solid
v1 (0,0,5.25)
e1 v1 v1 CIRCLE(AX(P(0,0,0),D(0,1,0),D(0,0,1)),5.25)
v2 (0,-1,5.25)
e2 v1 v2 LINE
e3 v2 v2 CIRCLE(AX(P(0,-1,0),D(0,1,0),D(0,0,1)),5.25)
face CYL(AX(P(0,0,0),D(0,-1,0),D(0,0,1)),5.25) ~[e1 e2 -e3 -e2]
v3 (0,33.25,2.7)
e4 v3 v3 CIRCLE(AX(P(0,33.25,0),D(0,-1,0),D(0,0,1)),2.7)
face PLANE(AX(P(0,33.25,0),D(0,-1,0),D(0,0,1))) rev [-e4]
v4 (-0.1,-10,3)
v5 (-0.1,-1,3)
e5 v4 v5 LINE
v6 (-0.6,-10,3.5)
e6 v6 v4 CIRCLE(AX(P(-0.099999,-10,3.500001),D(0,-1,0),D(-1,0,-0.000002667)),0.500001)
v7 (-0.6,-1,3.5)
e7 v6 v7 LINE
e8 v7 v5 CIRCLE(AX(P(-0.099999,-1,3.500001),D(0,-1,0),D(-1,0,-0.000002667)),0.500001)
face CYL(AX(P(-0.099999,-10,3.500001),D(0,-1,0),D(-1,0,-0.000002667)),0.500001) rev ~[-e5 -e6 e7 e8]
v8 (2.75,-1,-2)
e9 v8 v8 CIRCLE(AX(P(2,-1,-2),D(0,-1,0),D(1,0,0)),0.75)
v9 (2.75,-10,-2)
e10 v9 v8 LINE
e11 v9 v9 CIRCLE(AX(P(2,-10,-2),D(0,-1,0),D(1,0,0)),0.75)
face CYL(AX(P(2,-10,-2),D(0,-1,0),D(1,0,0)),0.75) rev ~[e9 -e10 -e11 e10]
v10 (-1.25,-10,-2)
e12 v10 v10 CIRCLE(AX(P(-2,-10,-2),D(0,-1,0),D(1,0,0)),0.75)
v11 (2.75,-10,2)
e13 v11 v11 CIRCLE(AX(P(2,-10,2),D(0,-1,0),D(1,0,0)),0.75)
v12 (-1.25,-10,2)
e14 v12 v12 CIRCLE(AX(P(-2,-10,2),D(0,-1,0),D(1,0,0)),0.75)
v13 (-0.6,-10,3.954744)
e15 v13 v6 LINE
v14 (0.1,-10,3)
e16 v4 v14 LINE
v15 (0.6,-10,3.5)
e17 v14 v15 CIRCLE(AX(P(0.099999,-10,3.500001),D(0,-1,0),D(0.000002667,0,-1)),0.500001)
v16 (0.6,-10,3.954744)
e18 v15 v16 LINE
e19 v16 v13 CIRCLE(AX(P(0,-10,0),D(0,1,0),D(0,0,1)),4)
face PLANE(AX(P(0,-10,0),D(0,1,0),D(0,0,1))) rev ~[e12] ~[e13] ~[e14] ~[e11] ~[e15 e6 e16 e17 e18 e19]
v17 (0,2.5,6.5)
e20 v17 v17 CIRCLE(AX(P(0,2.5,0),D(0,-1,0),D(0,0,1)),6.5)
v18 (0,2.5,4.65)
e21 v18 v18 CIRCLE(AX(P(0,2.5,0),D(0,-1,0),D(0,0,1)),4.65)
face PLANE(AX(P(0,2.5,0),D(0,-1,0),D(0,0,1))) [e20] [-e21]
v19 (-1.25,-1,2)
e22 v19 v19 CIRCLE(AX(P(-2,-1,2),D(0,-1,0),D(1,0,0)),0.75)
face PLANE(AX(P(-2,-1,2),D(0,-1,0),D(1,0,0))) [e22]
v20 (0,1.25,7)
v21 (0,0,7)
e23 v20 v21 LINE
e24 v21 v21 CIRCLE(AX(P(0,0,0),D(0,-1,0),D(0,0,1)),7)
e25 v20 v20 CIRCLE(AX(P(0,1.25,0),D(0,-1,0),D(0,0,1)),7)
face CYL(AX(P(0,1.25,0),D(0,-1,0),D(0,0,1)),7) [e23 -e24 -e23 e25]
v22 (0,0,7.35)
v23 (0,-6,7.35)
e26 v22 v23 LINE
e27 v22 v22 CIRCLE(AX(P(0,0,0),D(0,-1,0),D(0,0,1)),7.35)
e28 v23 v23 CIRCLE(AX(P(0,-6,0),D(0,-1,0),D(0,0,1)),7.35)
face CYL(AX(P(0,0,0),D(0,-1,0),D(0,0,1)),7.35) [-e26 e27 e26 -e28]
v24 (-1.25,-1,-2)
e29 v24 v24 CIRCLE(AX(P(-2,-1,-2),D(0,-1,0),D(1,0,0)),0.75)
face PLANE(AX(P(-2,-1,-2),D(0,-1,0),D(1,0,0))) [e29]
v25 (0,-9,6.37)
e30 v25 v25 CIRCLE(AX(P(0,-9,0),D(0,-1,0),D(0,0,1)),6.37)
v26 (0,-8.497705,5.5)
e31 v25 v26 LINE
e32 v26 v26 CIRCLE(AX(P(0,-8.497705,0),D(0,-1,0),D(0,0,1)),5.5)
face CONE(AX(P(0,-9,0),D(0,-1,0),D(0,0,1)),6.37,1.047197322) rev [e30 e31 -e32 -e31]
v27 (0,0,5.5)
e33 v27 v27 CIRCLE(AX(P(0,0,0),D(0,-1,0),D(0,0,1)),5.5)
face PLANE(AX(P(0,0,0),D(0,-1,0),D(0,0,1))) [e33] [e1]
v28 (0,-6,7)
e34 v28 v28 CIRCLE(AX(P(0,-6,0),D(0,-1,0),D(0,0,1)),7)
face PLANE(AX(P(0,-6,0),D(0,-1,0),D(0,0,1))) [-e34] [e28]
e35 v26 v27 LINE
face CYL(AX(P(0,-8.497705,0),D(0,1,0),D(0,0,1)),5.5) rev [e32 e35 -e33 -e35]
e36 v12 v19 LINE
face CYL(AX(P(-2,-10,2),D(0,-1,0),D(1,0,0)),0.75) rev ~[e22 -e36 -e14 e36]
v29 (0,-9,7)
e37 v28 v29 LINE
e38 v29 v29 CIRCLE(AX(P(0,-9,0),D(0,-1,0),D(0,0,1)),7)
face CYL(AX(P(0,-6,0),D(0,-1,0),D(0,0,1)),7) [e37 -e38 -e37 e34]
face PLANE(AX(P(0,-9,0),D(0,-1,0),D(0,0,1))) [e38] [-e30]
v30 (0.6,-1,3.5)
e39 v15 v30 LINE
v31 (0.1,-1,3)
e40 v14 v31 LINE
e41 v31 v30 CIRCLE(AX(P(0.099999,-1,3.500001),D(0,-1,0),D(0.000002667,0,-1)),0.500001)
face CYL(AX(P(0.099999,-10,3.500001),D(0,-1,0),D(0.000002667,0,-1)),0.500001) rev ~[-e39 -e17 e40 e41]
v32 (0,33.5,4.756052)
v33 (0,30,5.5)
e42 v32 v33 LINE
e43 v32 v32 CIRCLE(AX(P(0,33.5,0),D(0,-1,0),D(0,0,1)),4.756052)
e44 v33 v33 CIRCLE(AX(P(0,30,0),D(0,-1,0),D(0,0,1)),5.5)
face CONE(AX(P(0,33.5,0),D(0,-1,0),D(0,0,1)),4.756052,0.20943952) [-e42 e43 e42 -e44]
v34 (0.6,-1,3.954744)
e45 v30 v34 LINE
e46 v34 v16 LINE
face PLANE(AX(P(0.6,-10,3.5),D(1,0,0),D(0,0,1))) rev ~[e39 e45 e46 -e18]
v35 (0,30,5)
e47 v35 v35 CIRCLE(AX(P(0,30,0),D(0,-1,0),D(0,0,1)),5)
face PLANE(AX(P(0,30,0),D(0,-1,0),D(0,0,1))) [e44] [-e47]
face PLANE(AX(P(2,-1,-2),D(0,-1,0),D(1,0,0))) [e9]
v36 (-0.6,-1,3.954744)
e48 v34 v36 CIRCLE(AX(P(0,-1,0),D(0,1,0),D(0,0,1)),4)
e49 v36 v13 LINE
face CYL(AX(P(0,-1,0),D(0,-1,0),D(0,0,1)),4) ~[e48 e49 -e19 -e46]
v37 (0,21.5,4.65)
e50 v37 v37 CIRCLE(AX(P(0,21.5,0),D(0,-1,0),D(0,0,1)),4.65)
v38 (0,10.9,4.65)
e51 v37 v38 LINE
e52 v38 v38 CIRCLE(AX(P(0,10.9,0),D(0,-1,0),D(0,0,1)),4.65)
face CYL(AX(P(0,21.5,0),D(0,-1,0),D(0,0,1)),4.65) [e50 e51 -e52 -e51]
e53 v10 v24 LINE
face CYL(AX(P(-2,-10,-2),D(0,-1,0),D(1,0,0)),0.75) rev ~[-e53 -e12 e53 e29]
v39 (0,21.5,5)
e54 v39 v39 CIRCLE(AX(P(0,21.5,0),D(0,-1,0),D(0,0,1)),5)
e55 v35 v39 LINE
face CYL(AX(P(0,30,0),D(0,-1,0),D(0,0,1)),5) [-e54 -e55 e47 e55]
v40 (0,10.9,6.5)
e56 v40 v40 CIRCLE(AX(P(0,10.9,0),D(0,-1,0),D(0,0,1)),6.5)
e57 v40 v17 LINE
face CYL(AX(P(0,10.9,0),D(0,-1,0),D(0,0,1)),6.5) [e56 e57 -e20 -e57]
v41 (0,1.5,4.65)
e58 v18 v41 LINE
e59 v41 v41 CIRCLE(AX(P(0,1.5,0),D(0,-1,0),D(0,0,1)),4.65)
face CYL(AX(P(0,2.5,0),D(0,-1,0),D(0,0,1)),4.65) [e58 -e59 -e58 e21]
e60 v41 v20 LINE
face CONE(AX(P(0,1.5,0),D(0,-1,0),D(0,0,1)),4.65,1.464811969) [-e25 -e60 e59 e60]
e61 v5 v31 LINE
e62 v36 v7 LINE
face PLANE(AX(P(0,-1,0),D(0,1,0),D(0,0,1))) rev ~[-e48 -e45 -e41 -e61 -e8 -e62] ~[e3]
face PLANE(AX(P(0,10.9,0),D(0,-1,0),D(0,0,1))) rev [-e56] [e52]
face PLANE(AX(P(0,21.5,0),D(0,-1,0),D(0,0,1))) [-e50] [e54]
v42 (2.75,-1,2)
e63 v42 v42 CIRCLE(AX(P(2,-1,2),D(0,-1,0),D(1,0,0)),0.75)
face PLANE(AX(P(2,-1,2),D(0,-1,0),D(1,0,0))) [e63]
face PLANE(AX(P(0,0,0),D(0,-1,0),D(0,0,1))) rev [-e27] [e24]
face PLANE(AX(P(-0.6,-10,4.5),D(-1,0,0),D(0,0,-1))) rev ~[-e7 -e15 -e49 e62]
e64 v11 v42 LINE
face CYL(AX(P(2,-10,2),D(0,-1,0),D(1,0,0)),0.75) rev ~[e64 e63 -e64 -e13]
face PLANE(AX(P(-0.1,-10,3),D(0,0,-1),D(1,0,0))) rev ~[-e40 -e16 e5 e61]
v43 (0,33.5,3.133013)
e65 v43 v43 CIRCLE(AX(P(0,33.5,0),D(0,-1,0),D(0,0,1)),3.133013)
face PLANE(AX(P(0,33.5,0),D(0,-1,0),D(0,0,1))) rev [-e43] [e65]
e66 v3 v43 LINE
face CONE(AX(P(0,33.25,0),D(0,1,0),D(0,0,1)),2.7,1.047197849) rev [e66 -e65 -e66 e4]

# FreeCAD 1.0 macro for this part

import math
import FreeCAD as App
import Part
import Sketcher
from FreeCAD import Vector
Q = App.Units.Quantity


def add_polygon(sketch, points):
    """Adds a closed chain of lines whose ends are joined by coincident constraints."""
    first, n = sketch.GeometryCount, len(points)
    for a, b in zip(points, points[1:] + points[:1]):
        sketch.addGeometry(Part.LineSegment(App.Vector(*a, 0), App.Vector(*b, 0)), False)
    for i in range(n):
        sketch.addConstraint(Sketcher.Constraint("Coincident", first + i, 2, first + (i + 1) % n, 1))

doc = App.newDocument("Part")
body = doc.addObject("PartDesign::Body", "Body")

# Sketch on YZ plane
sketch1 = body.newObject("Sketcher::SketchObject", "Sketch")
sketch1.AttachmentSupport = (doc.getObject("YZ_Plane"), [""])
sketch1.MapMode = "FlatFace"
add_polygon(sketch1, [(1.25, 7), (0, 7), (0, 0), (33.25, 0), (33.25, 2.7), (33.5, 3.13), (33.5, 4.76), (30, 5.5), (30, 5), (21.5, 5), (21.5, 4.65), (10.9, 4.65), (10.9, 6.5), (2.5, 6.5), (2.5, 4.65), (1.5, 4.65)])  # lines 0-15
sketch1.addConstraint(Sketcher.Constraint("Horizontal", 0))
sketch1.addConstraint(Sketcher.Constraint("Vertical", 1))
sketch1.addConstraint(Sketcher.Constraint("Horizontal", 2))
sketch1.addConstraint(Sketcher.Constraint("Vertical", 3))
sketch1.addConstraint(Sketcher.Constraint("Vertical", 5))
sketch1.addConstraint(Sketcher.Constraint("Vertical", 7))
sketch1.addConstraint(Sketcher.Constraint("Horizontal", 8))
sketch1.addConstraint(Sketcher.Constraint("Vertical", 9))
sketch1.addConstraint(Sketcher.Constraint("Horizontal", 10))
sketch1.addConstraint(Sketcher.Constraint("Vertical", 11))
sketch1.addConstraint(Sketcher.Constraint("Horizontal", 12))
sketch1.addConstraint(Sketcher.Constraint("Vertical", 13))
sketch1.addConstraint(Sketcher.Constraint("Horizontal", 14))
sketch1.addConstraint(Sketcher.Constraint("Coincident", 1, 2, -1, 1))
sketch1.addConstraint(Sketcher.Constraint("Horizontal", 10, 2, 13, 2))
sketch1.addConstraint(Sketcher.Constraint("DistanceX", 14, 2, 14, 1, 1.0))
sketch1.addConstraint(Sketcher.Constraint("DistanceY", 1, 2, 1, 1, 7.0))
sketch1.addConstraint(Sketcher.Constraint("Angle", 4, Q("60.000017 deg")))
sketch1.addConstraint(Sketcher.Constraint("Angle", 6, Q("167.999999 deg")))
sketch1.addConstraint(Sketcher.Constraint("DistanceX", 8, 2, 8, 1, 8.5))
sketch1.addConstraint(Sketcher.Constraint("DistanceX", 10, 2, 10, 1, 10.6))
sketch1.addConstraint(Sketcher.Constraint("DistanceX", 12, 2, 12, 1, 8.4))
sketch1.addConstraint(Sketcher.Constraint("DistanceY", 3, 1, 3, 2, 2.7))
sketch1.addConstraint(Sketcher.Constraint("DistanceY", 7, 2, 7, 1, 0.5))
sketch1.addConstraint(Sketcher.Constraint("DistanceX", -1, 1, 6, 2, 30.0))
sketch1.addConstraint(Sketcher.Constraint("DistanceY", -1, 1, 7, 2, 5.0))
sketch1.addConstraint(Sketcher.Constraint("DistanceX", 8, 2, 5, 2, 12.0))
sketch1.addConstraint(Sketcher.Constraint("Distance", 4, 0.5))
sketch1.addConstraint(Sketcher.Constraint("DistanceX", 0, 2, 0, 1, 1.25))
sketch1.addConstraint(Sketcher.Constraint("DistanceY", 9, 2, 9, 1, 0.35))
sketch1.addConstraint(Sketcher.Constraint("DistanceY", 11, 1, 11, 2, 1.85))
revolution = body.newObject("PartDesign::Revolution", "Revolution")
revolution.Profile = sketch1
revolution.ReferenceAxis = (sketch1, ["H_Axis"])
revolution.Angle = 360

# Sketch on YZ plane
sketch2 = body.newObject("Sketcher::SketchObject", "Sketch001")
sketch2.AttachmentSupport = (doc.getObject("YZ_Plane"), [""])
sketch2.MapMode = "FlatFace"
add_polygon(sketch2, [(-8.5, 5.5), (0, 5.5), (0, 7.35), (-6, 7.35), (-6, 7), (-9, 7), (-9, 6.37)])  # lines 0-6
sketch2.addConstraint(Sketcher.Constraint("Horizontal", 0))
sketch2.addConstraint(Sketcher.Constraint("Vertical", 1))
sketch2.addConstraint(Sketcher.Constraint("Horizontal", 2))
sketch2.addConstraint(Sketcher.Constraint("Vertical", 3))
sketch2.addConstraint(Sketcher.Constraint("Horizontal", 4))
sketch2.addConstraint(Sketcher.Constraint("Vertical", 5))
sketch2.addConstraint(Sketcher.Constraint("PointOnObject", 0, 2, -2))
sketch2.addConstraint(Sketcher.Constraint("DistanceX", 2, 2, 2, 1, 6.0))
sketch2.addConstraint(Sketcher.Constraint("DistanceX", 4, 2, 4, 1, 3.0))
sketch2.addConstraint(Sketcher.Constraint("Angle", 6, Q("-59.999987 deg")))
sketch2.addConstraint(Sketcher.Constraint("DistanceY", -1, 1, 3, 2, 7.0))
sketch2.addConstraint(Sketcher.Constraint("DistanceY", 1, 1, 1, 2, 1.85))
sketch2.addConstraint(Sketcher.Constraint("DistanceY", 3, 2, 3, 1, 0.35))
sketch2.addConstraint(Sketcher.Constraint("DistanceY", 5, 2, 5, 1, 0.63))
revolution2 = body.newObject("PartDesign::Revolution", "Revolution001")
revolution2.Profile = sketch2
revolution2.ReferenceAxis = (sketch2, ["H_Axis"])
revolution2.Angle = 360

# Sketch on YZ plane
sketch3 = body.newObject("Sketcher::SketchObject", "Sketch002")
sketch3.AttachmentSupport = (doc.getObject("YZ_Plane"), [""])
sketch3.MapMode = "FlatFace"
add_polygon(sketch3, [(-10, 0), (0, 0), (0, 5.2), (-1, 5.2), (-1, 4), (-10, 4)])  # lines 0-5
sketch3.addConstraint(Sketcher.Constraint("Horizontal", 0))
sketch3.addConstraint(Sketcher.Constraint("Vertical", 1))
sketch3.addConstraint(Sketcher.Constraint("Horizontal", 2))
sketch3.addConstraint(Sketcher.Constraint("Vertical", 3))
sketch3.addConstraint(Sketcher.Constraint("Horizontal", 4))
sketch3.addConstraint(Sketcher.Constraint("Vertical", 5))
sketch3.addConstraint(Sketcher.Constraint("Coincident", 0, 2, -1, 1))
sketch3.addConstraint(Sketcher.Constraint("DistanceX", 0, 1, 0, 2, 10.0))
sketch3.addConstraint(Sketcher.Constraint("DistanceX", 2, 2, 2, 1, 1.0))
sketch3.addConstraint(Sketcher.Constraint("DistanceY", 5, 2, 5, 1, 4.0))
sketch3.addConstraint(Sketcher.Constraint("DistanceY", 1, 1, 1, 2, 5.25))
revolution3 = body.newObject("PartDesign::Revolution", "Revolution002")
revolution3.Profile = sketch3
revolution3.ReferenceAxis = (sketch3, ["H_Axis"])
revolution3.Angle = 360

# Sketch on XZ plane
sketch4 = body.newObject("Sketcher::SketchObject", "Sketch003")
sketch4.AttachmentSupport = (doc.getObject("XZ_Plane"), [""])
sketch4.MapMode = "FlatFace"
sketch4.AttachmentOffset = App.Placement(Vector(0, 0, 10), App.Rotation())
sketch4.addGeometry(Part.Circle(Vector(-2, 2, 0), Vector(0, 0, 1), 0.75), False)
sketch4.addGeometry(Part.Circle(Vector(2, 2, 0), Vector(0, 0, 1), 0.75), False)
sketch4.addGeometry(Part.Circle(Vector(2, -2, 0), Vector(0, 0, 1), 0.75), False)
sketch4.addGeometry(Part.Circle(Vector(-2, -2, 0), Vector(0, 0, 1), 0.75), False)
sketch4.addGeometry(Part.ArcOfCircle(Part.Circle(Vector(-0.1, 3.5, 0), Vector(0, 0, 1), 0.5), math.radians(-180), math.radians(-90)), False)
sketch4.addGeometry(Part.LineSegment(Vector(-0.1, 3, 0), Vector(0.1, 3, 0)), False)
sketch4.addGeometry(Part.ArcOfCircle(Part.Circle(Vector(0.1, 3.5, 0), Vector(0, 0, 1), 0.5), math.radians(-90), math.radians(0)), False)
sketch4.addGeometry(Part.LineSegment(Vector(0.6, 3.5, 0), Vector(0.6, 4.5, 0)), False)
sketch4.addGeometry(Part.LineSegment(Vector(0.6, 4.5, 0), Vector(-0.6, 4.5, 0)), False)
sketch4.addGeometry(Part.LineSegment(Vector(-0.6, 4.5, 0), Vector(-0.6, 3.5, 0)), False)
sketch4.addConstraint(Sketcher.Constraint("Coincident", 4, 2, 5, 1))
sketch4.addConstraint(Sketcher.Constraint("Coincident", 5, 2, 6, 1))
sketch4.addConstraint(Sketcher.Constraint("Coincident", 6, 2, 7, 1))
sketch4.addConstraint(Sketcher.Constraint("Coincident", 7, 2, 8, 1))
sketch4.addConstraint(Sketcher.Constraint("Coincident", 8, 2, 9, 1))
sketch4.addConstraint(Sketcher.Constraint("Coincident", 9, 2, 4, 1))
sketch4.addConstraint(Sketcher.Constraint("Horizontal", 5))
sketch4.addConstraint(Sketcher.Constraint("Vertical", 7))
sketch4.addConstraint(Sketcher.Constraint("Horizontal", 8))
sketch4.addConstraint(Sketcher.Constraint("Vertical", 9))
sketch4.addConstraint(Sketcher.Constraint("Equal", 0, 1))
sketch4.addConstraint(Sketcher.Constraint("Equal", 1, 2))
sketch4.addConstraint(Sketcher.Constraint("Equal", 2, 3))
sketch4.addConstraint(Sketcher.Constraint("Equal", 4, 6))
sketch4.addConstraint(Sketcher.Constraint("Symmetric", 0, 3, 2, 3, -1, 1))
sketch4.addConstraint(Sketcher.Constraint("Symmetric", 1, 3, 3, 3, -1, 1))
sketch4.addConstraint(Sketcher.Constraint("Symmetric", 0, 3, 1, 3, -2))
sketch4.addConstraint(Sketcher.Constraint("Symmetric", 6, 2, 9, 2, -2))
sketch4.addConstraint(Sketcher.Constraint("Horizontal", 4, 3, 6, 2))
sketch4.addConstraint(Sketcher.Constraint("Vertical", 6, 3, 5, 2))
sketch4.addConstraint(Sketcher.Constraint("Diameter", 0, 1.5))
sketch4.addConstraint(Sketcher.Constraint("Radius", 4, 0.500001))
sketch4.addConstraint(Sketcher.Constraint("DistanceY", 7, 1, 7, 2, 1.0))
sketch4.addConstraint(Sketcher.Constraint("DistanceX", 5, 1, 5, 2, 0.2))
sketch4.addConstraint(Sketcher.Constraint("DistanceX", 8, 2, 8, 1, 1.2))
sketch4.addConstraint(Sketcher.Constraint("DistanceX", 0, 3, -1, 1, 2.0))
sketch4.addConstraint(Sketcher.Constraint("DistanceY", -1, 1, 0, 3, 2.0))
sketch4.addConstraint(Sketcher.Constraint("DistanceY", -1, 1, 4, 2, 3.0))
pocket1 = body.newObject("PartDesign::Pocket", "Pocket")
pocket1.Profile = sketch4
pocket1.Length = 9

doc.recompute()
